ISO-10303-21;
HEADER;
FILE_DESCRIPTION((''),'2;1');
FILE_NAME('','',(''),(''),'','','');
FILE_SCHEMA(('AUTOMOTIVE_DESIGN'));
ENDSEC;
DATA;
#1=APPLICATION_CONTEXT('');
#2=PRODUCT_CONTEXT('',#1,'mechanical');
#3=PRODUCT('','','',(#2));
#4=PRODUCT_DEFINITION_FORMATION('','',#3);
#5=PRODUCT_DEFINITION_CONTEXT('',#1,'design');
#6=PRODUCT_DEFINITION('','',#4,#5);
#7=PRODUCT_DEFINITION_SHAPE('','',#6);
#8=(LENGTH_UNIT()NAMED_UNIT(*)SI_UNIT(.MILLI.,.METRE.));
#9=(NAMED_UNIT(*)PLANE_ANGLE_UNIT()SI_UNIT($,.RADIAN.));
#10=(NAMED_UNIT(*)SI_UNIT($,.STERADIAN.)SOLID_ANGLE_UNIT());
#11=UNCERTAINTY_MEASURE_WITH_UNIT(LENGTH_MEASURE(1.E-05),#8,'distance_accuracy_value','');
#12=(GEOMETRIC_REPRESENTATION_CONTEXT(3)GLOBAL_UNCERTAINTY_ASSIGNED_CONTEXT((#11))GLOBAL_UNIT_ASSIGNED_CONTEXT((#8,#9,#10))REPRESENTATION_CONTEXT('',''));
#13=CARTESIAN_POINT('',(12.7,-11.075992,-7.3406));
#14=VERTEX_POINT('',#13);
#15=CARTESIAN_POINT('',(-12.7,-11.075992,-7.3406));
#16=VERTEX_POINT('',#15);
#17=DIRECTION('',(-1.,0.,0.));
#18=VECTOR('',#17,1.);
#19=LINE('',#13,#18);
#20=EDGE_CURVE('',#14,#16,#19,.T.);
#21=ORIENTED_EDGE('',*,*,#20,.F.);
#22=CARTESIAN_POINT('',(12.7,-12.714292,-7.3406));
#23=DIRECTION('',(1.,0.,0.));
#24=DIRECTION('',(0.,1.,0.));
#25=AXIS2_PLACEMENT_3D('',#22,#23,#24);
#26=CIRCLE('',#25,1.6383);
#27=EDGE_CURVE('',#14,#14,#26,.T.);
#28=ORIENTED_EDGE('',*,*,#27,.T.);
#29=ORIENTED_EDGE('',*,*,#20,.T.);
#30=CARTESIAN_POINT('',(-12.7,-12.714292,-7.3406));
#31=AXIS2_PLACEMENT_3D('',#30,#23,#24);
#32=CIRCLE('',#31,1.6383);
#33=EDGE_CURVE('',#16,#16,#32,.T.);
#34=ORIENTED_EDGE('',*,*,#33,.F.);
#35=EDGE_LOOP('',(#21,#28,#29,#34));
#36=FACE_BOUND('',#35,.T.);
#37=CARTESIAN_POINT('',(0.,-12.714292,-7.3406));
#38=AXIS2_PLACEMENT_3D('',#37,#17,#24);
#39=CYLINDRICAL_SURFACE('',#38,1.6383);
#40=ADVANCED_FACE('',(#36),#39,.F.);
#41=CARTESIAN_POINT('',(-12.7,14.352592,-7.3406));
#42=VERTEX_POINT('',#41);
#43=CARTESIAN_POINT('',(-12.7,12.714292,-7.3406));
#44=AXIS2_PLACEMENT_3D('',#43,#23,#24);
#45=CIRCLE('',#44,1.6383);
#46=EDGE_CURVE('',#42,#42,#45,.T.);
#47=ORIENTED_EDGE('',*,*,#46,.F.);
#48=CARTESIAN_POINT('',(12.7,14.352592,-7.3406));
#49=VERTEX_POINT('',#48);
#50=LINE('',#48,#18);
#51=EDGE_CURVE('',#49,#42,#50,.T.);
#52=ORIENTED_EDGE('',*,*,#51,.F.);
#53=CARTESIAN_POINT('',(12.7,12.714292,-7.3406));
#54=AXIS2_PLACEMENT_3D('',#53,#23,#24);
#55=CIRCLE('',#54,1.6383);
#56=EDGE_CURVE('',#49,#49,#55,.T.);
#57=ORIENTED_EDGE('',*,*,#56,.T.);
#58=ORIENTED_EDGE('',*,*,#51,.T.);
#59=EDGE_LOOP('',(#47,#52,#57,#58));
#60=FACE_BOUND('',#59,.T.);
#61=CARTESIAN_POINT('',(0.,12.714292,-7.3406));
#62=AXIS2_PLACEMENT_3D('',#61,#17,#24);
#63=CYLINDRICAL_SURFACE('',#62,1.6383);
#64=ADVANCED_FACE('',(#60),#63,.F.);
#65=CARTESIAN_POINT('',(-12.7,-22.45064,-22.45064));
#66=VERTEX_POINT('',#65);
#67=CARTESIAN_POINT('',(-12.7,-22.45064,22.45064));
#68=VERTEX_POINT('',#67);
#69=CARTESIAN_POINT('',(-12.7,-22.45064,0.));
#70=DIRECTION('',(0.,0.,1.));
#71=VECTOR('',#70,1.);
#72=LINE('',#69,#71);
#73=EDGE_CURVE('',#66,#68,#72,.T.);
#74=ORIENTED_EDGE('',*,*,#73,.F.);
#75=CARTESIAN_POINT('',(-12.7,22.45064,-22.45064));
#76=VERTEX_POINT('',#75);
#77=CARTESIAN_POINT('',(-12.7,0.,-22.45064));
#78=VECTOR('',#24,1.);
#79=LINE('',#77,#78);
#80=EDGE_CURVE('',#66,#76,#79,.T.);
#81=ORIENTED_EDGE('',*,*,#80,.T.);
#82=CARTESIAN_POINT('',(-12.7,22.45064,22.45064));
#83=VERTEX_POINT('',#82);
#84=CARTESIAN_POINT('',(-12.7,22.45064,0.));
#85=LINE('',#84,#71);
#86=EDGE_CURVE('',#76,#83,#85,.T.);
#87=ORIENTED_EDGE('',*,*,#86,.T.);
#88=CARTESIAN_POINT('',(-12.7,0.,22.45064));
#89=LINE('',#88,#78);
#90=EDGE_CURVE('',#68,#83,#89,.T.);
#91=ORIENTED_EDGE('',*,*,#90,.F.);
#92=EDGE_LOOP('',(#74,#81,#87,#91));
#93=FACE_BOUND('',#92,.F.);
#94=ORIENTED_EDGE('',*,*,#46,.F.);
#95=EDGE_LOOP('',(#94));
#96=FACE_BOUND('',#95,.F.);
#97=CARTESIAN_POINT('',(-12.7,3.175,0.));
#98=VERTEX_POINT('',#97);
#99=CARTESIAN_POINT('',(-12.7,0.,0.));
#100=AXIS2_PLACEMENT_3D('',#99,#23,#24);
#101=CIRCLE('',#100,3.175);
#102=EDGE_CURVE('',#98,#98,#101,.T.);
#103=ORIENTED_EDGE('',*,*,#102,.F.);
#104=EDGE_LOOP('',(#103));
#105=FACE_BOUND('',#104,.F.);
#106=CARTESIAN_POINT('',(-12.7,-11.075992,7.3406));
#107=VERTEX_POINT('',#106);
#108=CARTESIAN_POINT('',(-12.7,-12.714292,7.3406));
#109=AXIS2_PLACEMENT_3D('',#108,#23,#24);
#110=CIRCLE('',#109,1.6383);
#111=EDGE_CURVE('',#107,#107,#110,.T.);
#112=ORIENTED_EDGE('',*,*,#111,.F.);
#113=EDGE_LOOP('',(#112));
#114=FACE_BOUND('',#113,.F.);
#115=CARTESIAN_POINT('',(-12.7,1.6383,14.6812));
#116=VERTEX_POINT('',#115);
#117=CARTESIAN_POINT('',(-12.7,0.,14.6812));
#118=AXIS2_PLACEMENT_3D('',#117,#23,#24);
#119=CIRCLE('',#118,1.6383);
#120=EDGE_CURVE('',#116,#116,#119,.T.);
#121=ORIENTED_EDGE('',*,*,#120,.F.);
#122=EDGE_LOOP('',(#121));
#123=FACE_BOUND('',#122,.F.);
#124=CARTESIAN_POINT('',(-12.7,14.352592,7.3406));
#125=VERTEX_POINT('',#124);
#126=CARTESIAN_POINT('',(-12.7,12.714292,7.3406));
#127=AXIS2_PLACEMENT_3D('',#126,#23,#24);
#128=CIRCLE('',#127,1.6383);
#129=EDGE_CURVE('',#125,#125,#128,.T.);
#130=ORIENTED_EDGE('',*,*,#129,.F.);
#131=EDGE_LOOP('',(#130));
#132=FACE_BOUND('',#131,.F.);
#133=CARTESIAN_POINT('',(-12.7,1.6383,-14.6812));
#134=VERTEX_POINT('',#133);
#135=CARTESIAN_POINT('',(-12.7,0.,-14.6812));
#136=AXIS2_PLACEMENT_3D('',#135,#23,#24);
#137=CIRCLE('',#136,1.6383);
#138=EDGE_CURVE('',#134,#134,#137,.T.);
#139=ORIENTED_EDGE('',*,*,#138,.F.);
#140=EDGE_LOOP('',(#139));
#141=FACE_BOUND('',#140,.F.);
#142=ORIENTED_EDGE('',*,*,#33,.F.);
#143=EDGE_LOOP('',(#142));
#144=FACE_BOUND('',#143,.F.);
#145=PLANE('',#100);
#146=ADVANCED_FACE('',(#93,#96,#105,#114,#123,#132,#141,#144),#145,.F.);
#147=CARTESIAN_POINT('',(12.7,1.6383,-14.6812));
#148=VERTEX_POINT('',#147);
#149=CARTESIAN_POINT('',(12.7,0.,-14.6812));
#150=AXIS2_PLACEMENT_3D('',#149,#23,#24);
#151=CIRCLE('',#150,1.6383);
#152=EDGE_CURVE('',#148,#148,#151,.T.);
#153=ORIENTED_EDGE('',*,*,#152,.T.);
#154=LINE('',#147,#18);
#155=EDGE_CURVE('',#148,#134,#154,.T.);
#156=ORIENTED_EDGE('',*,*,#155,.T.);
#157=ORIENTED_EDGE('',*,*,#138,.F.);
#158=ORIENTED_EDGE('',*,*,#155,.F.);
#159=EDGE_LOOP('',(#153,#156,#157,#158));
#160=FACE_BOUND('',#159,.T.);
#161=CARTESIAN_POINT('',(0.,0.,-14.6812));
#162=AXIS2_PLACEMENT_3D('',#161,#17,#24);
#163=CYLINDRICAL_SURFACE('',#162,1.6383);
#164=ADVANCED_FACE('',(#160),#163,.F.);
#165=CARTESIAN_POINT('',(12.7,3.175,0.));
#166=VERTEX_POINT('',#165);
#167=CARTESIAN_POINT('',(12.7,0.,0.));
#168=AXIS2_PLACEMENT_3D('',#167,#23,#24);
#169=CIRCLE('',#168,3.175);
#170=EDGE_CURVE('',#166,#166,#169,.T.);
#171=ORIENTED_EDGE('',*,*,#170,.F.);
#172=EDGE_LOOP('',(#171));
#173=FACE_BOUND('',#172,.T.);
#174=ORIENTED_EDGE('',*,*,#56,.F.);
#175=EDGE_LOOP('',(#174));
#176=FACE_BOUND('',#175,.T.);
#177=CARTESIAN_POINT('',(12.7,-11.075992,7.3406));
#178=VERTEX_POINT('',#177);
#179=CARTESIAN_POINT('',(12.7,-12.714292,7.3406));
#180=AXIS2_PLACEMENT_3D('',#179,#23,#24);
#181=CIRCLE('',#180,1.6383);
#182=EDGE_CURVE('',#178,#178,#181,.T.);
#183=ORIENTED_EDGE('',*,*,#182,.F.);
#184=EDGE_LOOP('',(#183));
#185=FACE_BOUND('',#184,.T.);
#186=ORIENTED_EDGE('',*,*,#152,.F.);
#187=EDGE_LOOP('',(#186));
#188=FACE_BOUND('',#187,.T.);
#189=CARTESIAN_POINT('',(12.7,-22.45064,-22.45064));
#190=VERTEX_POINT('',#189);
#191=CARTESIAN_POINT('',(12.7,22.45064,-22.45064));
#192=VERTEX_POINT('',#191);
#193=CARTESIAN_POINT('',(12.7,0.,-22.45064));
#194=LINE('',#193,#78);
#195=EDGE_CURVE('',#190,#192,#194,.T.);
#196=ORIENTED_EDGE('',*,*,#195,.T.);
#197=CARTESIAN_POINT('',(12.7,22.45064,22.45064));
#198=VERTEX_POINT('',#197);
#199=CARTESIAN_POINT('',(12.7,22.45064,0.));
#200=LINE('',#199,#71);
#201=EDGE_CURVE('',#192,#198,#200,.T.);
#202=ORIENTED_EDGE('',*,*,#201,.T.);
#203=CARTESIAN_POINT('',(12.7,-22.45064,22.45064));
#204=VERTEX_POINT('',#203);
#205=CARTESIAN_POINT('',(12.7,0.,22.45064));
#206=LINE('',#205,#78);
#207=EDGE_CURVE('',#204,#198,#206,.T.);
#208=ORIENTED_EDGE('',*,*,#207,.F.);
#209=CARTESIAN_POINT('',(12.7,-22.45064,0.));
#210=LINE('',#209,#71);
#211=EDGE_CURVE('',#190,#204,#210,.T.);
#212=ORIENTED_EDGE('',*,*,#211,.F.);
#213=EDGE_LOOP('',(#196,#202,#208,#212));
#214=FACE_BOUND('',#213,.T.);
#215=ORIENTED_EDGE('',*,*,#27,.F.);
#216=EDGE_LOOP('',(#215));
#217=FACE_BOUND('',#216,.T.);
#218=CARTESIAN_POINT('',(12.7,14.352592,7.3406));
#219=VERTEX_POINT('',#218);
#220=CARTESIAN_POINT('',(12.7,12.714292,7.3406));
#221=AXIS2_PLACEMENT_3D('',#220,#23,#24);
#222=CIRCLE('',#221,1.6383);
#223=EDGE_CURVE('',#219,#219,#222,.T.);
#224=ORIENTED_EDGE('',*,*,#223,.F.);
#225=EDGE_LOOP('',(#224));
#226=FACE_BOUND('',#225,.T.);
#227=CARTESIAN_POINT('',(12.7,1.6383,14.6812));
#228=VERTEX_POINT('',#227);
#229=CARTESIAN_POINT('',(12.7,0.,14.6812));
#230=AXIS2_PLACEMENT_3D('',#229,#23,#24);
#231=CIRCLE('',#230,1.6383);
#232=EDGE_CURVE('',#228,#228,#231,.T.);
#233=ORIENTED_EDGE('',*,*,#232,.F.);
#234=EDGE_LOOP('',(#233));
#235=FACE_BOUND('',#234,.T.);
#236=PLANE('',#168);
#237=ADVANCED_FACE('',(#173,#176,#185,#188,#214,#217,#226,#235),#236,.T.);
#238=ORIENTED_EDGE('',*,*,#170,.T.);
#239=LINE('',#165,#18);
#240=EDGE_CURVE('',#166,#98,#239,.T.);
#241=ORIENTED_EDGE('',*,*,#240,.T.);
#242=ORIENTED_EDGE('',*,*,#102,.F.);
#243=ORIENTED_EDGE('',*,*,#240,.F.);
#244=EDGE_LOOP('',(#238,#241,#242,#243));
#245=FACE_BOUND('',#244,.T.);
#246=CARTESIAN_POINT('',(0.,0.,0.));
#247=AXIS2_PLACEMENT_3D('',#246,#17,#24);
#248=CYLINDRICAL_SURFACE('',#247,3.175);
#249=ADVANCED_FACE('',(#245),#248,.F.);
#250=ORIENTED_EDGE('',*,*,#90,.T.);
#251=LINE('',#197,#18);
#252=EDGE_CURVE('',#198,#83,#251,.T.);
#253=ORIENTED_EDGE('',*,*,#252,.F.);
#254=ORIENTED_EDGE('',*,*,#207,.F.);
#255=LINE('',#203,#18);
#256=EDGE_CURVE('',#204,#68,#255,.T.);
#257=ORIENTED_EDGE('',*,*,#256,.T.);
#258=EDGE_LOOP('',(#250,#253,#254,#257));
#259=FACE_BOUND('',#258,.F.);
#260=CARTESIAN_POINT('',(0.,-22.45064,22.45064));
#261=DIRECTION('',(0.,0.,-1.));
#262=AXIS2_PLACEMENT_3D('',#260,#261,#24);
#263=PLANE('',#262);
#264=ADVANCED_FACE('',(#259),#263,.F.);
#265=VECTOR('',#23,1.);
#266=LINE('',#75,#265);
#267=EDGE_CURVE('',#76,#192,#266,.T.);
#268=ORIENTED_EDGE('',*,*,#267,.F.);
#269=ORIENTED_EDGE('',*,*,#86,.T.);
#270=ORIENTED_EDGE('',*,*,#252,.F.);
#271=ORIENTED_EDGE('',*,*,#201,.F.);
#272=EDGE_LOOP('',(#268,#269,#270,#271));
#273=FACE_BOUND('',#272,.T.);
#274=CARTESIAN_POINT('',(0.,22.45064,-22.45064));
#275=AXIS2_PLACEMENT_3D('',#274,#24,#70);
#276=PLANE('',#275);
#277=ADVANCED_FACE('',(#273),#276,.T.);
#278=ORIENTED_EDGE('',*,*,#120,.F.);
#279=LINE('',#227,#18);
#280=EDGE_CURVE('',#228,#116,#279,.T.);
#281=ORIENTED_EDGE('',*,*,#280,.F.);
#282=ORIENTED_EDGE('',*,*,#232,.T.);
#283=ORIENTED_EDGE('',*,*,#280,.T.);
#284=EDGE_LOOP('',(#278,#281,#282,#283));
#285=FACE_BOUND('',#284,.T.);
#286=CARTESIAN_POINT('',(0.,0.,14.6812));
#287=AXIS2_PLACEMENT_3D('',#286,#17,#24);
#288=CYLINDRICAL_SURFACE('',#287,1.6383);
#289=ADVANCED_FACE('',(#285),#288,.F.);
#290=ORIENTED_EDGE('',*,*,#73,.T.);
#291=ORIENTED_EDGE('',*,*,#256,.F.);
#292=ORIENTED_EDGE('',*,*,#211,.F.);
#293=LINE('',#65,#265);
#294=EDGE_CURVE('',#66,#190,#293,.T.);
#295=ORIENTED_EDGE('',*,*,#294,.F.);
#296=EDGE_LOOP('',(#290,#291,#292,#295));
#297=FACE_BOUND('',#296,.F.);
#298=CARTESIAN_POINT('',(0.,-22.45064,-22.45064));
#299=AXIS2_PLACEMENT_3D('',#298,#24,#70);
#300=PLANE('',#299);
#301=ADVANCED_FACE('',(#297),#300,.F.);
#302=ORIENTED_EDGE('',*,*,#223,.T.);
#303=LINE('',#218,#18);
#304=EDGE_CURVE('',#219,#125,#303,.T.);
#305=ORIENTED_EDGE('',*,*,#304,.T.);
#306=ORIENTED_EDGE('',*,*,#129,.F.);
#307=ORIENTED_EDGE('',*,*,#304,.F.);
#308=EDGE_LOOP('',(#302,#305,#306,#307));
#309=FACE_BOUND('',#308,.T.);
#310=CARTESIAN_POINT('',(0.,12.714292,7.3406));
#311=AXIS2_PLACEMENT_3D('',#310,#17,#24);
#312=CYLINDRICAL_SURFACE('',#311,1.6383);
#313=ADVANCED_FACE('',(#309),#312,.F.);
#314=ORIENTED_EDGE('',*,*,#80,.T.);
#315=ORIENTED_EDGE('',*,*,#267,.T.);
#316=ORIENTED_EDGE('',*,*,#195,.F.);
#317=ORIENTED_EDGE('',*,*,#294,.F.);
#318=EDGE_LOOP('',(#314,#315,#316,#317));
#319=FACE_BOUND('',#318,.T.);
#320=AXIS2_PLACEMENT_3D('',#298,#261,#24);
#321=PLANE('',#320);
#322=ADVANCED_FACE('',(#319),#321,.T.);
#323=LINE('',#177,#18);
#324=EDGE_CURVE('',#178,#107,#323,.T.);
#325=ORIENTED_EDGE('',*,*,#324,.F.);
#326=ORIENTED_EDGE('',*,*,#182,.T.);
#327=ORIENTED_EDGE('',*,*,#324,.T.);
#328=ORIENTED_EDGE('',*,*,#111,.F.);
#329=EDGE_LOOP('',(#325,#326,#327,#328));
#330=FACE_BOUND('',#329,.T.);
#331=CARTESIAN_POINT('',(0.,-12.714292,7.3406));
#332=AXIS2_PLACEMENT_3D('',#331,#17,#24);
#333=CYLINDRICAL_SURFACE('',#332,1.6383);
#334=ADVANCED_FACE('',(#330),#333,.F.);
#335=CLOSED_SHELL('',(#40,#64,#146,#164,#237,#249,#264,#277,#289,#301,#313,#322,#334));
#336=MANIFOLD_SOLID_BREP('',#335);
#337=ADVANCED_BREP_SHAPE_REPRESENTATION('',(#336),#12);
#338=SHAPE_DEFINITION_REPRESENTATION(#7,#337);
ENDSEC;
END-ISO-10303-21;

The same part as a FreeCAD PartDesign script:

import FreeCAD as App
import Part
import Sketcher
Q = App.Units.Quantity


def add_polygon(sketch, points):
    """Adds a closed chain of lines whose ends are joined by coincident constraints."""
    first, n = sketch.GeometryCount, len(points)
    for a, b in zip(points, points[1:] + points[:1]):
        sketch.addGeometry(Part.LineSegment(App.Vector(*a, 0), App.Vector(*b, 0)), False)
    for i in range(n):
        sketch.addConstraint(Sketcher.Constraint("Coincident", first + i, 2, first + (i + 1) % n, 1))

doc = App.newDocument("Part")
body = doc.addObject("PartDesign::Body", "Body")

sketch1 = body.newObject("Sketcher::SketchObject", "Sketch")
sketch1.AttachmentSupport = (doc.getObject("YZ_Plane"), [""])
sketch1.MapMode = "FlatFace"
add_polygon(sketch1, [(-22.45064, 22.45064), (-22.45064, -22.45064), (22.45064, -22.45064), (22.45064, 22.45064)])
sketch1.addGeometry(Part.Circle(App.Vector(-12.714292, -7.3406, 0), App.Vector(0, 0, 1), 1.6383), False)
sketch1.addGeometry(Part.Circle(App.Vector(0, -14.6812, 0), App.Vector(0, 0, 1), 1.6383), False)
sketch1.addGeometry(Part.Circle(App.Vector(12.714292, -7.3406, 0), App.Vector(0, 0, 1), 1.6383), False)
sketch1.addGeometry(Part.Circle(App.Vector(-12.714292, 7.3406, 0), App.Vector(0, 0, 1), 1.6383), False)
sketch1.addGeometry(Part.Circle(App.Vector(0, 0, 0), App.Vector(0, 0, 1), 3.175), False)
sketch1.addGeometry(Part.Circle(App.Vector(12.714292, 7.3406, 0), App.Vector(0, 0, 1), 1.6383), False)
sketch1.addGeometry(Part.Circle(App.Vector(0, 14.6812, 0), App.Vector(0, 0, 1), 1.6383), False)
sketch1.addConstraint([
    Sketcher.Constraint("Vertical", 0),
    Sketcher.Constraint("Horizontal", 1),
    Sketcher.Constraint("Vertical", 2),
    Sketcher.Constraint("Horizontal", 3),
    Sketcher.Constraint("Coincident", 8, 3, -1, 1),
    Sketcher.Constraint("Equal", 4, 5),
    Sketcher.Constraint("Equal", 5, 6),
    Sketcher.Constraint("Equal", 6, 7),
    Sketcher.Constraint("Equal", 7, 9),
    Sketcher.Constraint("Equal", 9, 10),
    Sketcher.Constraint("Symmetric", 6, 3, 7, 3, -1, 1),
    Sketcher.Constraint("Symmetric", 4, 3, 9, 3, -1, 1),
    Sketcher.Constraint("Symmetric", 5, 3, 10, 3, -1, 1),
    Sketcher.Constraint("Symmetric", 0, 2, 2, 2, -1, 1),
    Sketcher.Constraint("Symmetric", 4, 3, 6, 3, -2),
    Sketcher.Constraint("PointOnObject", 5, 3, -2),
    Sketcher.Constraint("Equal", 3, 0),
    Sketcher.Constraint("Diameter", 8, Q("0.25 in")),
    Sketcher.Constraint("Diameter", 4, Q("0.129 in")),
    Sketcher.Constraint("DistanceY", 4, 3, -1, 1, Q("0.289 in")),
    Sketcher.Constraint("DistanceY", 5, 3, -1, 1, Q("0.578 in")),
    Sketcher.Constraint("DistanceX", 1, 1, 1, 2, Q("44.90128 mm")),
    Sketcher.Constraint("DistanceX", 4, 3, -1, 1, Q("12.714292 mm")),
])
pad1 = body.newObject("PartDesign::Pad", "Pad")
pad1.Profile = sketch1
pad1.Length = Q("1 in")
pad1.Midplane = True

doc.recompute()
